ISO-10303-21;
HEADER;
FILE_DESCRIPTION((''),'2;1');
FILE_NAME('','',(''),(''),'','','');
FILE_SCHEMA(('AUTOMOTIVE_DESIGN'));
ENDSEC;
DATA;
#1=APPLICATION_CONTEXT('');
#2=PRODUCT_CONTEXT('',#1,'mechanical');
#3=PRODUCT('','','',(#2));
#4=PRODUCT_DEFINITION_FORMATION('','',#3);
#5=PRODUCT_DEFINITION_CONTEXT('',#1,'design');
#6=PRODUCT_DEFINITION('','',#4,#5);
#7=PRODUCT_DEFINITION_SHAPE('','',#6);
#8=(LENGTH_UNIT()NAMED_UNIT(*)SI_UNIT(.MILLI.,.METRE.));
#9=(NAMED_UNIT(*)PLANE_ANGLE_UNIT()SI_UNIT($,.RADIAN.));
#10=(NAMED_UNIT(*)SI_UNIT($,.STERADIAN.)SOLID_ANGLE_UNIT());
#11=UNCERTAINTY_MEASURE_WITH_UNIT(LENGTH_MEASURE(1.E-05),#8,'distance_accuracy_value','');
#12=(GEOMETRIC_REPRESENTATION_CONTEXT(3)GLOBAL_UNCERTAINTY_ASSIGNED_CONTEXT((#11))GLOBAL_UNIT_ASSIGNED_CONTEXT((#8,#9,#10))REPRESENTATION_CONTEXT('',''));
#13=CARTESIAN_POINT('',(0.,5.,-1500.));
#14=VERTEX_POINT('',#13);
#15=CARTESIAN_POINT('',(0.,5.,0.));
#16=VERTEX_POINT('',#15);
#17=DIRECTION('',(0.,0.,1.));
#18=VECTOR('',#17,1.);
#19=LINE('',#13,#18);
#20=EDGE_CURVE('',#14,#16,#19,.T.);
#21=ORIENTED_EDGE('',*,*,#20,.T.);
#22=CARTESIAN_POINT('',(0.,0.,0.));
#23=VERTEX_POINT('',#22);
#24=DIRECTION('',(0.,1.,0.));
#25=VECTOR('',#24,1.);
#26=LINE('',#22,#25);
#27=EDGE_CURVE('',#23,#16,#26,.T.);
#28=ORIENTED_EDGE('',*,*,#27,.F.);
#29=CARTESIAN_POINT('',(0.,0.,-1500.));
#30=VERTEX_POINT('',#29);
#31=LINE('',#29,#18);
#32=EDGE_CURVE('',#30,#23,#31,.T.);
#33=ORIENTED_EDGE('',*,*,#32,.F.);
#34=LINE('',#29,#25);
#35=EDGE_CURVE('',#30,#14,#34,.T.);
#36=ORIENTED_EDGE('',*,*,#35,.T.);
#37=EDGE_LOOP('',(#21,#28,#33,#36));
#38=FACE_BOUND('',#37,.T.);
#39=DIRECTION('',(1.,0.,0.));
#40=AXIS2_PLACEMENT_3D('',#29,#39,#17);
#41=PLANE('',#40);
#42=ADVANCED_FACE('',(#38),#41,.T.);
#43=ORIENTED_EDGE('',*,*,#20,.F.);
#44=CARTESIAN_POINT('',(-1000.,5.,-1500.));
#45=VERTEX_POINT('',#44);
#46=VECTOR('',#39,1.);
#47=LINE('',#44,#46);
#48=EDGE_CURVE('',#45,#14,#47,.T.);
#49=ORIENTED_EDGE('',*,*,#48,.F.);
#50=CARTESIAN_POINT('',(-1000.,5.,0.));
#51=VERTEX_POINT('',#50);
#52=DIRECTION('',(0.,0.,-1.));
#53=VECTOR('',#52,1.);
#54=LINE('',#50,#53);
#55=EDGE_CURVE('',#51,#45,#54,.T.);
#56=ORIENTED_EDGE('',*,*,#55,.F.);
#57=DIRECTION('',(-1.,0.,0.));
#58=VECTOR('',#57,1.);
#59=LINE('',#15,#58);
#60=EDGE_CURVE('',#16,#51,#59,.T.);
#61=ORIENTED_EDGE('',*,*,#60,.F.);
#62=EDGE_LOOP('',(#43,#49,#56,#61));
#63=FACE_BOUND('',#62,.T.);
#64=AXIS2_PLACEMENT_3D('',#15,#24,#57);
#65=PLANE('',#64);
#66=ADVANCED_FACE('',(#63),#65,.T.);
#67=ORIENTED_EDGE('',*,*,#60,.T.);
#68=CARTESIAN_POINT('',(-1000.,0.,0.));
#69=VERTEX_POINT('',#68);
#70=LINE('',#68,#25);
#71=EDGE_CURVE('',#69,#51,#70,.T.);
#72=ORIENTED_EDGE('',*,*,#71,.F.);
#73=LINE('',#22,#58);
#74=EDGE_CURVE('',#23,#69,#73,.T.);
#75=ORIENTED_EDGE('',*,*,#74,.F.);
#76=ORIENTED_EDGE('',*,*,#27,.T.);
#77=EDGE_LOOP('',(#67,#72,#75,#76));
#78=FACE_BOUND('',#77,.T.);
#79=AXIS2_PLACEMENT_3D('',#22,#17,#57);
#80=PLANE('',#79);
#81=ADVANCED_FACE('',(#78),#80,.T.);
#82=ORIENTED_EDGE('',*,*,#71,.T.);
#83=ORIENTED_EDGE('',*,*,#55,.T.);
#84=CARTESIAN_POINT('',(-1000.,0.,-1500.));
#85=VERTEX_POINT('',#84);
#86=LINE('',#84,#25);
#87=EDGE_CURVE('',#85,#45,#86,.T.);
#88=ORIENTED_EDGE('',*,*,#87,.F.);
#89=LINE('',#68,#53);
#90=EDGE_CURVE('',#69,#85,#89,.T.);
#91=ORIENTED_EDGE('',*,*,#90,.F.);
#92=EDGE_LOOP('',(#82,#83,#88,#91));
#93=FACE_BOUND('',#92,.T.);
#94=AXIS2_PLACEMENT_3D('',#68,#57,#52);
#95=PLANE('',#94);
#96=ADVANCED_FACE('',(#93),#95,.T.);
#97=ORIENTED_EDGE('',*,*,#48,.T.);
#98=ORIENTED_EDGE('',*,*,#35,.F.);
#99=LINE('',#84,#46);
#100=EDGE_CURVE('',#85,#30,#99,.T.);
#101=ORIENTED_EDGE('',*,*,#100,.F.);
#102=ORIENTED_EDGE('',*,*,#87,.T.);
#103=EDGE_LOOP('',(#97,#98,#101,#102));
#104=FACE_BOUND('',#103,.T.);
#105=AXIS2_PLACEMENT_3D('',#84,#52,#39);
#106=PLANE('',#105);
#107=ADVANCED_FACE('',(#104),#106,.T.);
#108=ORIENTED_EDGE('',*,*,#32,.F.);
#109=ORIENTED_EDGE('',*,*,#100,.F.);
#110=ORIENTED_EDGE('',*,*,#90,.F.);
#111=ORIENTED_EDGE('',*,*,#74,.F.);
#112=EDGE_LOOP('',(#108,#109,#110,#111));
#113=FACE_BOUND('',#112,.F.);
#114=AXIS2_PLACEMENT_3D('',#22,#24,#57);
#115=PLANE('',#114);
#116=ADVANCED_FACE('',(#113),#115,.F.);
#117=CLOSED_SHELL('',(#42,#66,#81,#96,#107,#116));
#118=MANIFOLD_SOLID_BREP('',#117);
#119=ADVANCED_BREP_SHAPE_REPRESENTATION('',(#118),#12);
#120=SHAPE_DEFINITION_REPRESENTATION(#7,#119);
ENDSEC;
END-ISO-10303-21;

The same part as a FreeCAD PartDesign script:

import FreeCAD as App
import Part
import Sketcher
Q = App.Units.Quantity


def add_polygon(sketch, points):
    """Adds a closed chain of lines whose ends are joined by coincident constraints."""
    first, n = sketch.GeometryCount, len(points)
    for a, b in zip(points, points[1:] + points[:1]):
        sketch.addGeometry(Part.LineSegment(App.Vector(*a, 0), App.Vector(*b, 0)), False)
    for i in range(n):
        sketch.addConstraint(Sketcher.Constraint("Coincident", first + i, 2, first + (i + 1) % n, 1))

doc = App.newDocument("Part")
params = doc.addObject("Spreadsheet::Sheet", "Params")
for row, (alias, value) in enumerate([
    ("sketch1_width", "1000 mm"),
    ("sketch1_height", "1500 mm"),
    ("pad1_length", "5 mm"),
], start=1):
    params.set(f"A{row}", alias)
    params.set(f"B{row}", "=" + value)
    params.setAlias(f"B{row}", alias)

body = doc.addObject("PartDesign::Body", "Body")

# Sketch on XZ plane
sketch1 = body.newObject("Sketcher::SketchObject", "Sketch")
sketch1.AttachmentSupport = (doc.getObject("XZ_Plane"), [""])
sketch1.MapMode = "FlatFace"
add_polygon(sketch1, [(-1000, 0), (0, 0), (0, -1500), (-1000, -1500)])  # lines 0-3
sketch1.addConstraint([
    Sketcher.Constraint("Horizontal", 0),
    Sketcher.Constraint("Vertical", 1),
    Sketcher.Constraint("Horizontal", 2),
    Sketcher.Constraint("Vertical", 3),
    Sketcher.Constraint("Coincident", 0, 2, -1, 1),
    Sketcher.Constraint("DistanceX", 0, 1, 0, 2, Q("1000 mm")),
    Sketcher.Constraint("DistanceY", 1, 2, 1, 1, Q("1500 mm")),
])
sketch1.setExpression("Constraints[9]", "Params.sketch1_width")
sketch1.setExpression("Constraints[10]", "Params.sketch1_height")
pad1 = body.newObject("PartDesign::Pad", "Pad")
pad1.Profile = sketch1
pad1.setExpression("Length", "Params.pad1_length")
pad1.Reversed = True

doc.recompute()
